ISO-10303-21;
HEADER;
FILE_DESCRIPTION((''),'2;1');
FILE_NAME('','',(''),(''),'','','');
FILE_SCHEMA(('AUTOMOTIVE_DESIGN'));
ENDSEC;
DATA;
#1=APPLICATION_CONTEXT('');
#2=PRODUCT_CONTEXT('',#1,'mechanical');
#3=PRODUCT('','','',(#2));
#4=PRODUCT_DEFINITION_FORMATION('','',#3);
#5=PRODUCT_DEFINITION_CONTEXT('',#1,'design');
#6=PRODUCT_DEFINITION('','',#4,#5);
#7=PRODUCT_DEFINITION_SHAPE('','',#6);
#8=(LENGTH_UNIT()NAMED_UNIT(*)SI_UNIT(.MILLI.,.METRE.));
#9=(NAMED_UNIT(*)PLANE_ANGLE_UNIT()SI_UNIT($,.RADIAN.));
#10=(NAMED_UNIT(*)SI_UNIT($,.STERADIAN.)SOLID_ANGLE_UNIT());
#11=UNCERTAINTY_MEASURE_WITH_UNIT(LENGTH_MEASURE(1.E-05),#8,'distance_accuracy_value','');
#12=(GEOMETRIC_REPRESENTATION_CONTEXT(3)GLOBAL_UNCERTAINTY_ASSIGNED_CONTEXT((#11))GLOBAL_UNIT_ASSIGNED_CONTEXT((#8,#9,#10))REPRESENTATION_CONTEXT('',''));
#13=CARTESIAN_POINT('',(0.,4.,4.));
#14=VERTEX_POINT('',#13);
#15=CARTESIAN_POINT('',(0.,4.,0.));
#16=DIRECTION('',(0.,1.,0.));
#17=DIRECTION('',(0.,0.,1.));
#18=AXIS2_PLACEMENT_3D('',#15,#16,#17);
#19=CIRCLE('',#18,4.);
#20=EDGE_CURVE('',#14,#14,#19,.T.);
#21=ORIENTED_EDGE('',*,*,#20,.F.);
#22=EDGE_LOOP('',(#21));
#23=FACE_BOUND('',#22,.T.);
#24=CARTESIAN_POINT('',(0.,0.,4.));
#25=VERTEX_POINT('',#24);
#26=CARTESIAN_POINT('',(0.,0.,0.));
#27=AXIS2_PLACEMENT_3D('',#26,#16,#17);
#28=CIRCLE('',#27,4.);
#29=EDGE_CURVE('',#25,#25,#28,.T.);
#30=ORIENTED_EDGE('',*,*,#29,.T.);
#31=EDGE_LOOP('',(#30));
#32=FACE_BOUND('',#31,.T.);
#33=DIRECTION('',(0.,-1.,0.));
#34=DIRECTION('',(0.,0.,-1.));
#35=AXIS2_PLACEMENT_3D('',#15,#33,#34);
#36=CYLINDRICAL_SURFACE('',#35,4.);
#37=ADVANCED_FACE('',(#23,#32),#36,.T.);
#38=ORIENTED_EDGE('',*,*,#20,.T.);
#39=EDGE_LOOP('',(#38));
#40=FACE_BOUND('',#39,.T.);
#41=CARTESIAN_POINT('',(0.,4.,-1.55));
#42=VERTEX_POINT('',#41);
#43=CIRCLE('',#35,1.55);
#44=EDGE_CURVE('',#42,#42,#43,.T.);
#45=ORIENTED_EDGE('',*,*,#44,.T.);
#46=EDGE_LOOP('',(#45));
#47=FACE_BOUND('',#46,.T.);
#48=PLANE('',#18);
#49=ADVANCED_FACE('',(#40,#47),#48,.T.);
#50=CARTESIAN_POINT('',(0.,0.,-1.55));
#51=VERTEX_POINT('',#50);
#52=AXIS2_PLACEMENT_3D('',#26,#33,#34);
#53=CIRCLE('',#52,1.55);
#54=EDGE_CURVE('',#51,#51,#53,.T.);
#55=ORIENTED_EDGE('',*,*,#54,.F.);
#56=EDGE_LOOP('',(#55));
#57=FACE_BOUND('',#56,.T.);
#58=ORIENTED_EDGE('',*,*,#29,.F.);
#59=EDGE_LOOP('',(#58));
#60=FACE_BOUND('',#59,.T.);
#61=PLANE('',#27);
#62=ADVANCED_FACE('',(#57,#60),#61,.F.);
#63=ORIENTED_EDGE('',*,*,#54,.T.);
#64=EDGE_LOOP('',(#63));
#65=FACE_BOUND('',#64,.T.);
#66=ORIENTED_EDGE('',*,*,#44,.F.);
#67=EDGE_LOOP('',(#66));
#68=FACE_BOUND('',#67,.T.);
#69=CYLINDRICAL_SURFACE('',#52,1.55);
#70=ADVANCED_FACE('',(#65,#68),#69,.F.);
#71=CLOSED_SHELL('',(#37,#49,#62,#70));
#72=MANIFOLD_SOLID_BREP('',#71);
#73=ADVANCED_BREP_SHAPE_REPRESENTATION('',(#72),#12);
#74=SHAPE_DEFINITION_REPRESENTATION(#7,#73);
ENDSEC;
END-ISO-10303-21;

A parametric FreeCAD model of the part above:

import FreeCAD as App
import Part
import Sketcher

V = App.Vector
Q = App.Units.Quantity

doc = App.newDocument("Part")
params = doc.addObject("Spreadsheet::Sheet", "Params")
for row, (alias, value) in enumerate([
    ("sketch1_diameter", "8 mm"),
    ("pad1_length", "4 mm"),
    ("sketch2_diameter", "3.1 mm"),
    ("hole_diameter", "3.1 mm"),
], start=1):
    params.set(f"A{row}", alias)
    params.set(f"B{row}", "=" + value)
    params.setAlias(f"B{row}", alias)

body = doc.addObject("PartDesign::Body", "Body")

# Sketch on XZ plane
sketch1 = body.newObject("Sketcher::SketchObject", "Sketch")
sketch1.AttachmentSupport = (doc.getObject("XZ_Plane"), [""])
sketch1.MapMode = "FlatFace"
sketch1.addGeometry(Part.Circle(V(0, 0, 0), V(0, 0, 1), 4), False)
sketch1.addConstraint(Sketcher.Constraint("Coincident", 0, 3, -1, 1))
sketch1.addConstraint(Sketcher.Constraint("Diameter", 0, Q("8 mm")))
sketch1.setExpression("Constraints[1]", "Params.sketch1_diameter")
pad1 = body.newObject("PartDesign::Pad", "Pad")
pad1.Profile = sketch1
pad1.setExpression("Length", "Params.pad1_length")
pad1.Reversed = True

# Sketch on XZ plane
sketch2 = body.newObject("Sketcher::SketchObject", "Sketch001")
sketch2.AttachmentSupport = (doc.getObject("XZ_Plane"), [""])
sketch2.MapMode = "FlatFace"
sketch2.addGeometry(Part.Circle(V(0, 0, 0), V(0, 0, 1), 1.55), False)
sketch2.addConstraint(Sketcher.Constraint("Coincident", 0, 3, -1, 1))
sketch2.addConstraint(Sketcher.Constraint("Diameter", 0, Q("3.1 mm")))
sketch2.setExpression("Constraints[1]", "Params.sketch2_diameter")
doc.recompute()
hole = body.newObject("PartDesign::Hole", "Hole")
hole.Profile = sketch2
hole.ThreadType = "None"
hole.setExpression("Diameter", "Params.hole_diameter")
hole.DepthType = "ThroughAll"

doc.recompute()
